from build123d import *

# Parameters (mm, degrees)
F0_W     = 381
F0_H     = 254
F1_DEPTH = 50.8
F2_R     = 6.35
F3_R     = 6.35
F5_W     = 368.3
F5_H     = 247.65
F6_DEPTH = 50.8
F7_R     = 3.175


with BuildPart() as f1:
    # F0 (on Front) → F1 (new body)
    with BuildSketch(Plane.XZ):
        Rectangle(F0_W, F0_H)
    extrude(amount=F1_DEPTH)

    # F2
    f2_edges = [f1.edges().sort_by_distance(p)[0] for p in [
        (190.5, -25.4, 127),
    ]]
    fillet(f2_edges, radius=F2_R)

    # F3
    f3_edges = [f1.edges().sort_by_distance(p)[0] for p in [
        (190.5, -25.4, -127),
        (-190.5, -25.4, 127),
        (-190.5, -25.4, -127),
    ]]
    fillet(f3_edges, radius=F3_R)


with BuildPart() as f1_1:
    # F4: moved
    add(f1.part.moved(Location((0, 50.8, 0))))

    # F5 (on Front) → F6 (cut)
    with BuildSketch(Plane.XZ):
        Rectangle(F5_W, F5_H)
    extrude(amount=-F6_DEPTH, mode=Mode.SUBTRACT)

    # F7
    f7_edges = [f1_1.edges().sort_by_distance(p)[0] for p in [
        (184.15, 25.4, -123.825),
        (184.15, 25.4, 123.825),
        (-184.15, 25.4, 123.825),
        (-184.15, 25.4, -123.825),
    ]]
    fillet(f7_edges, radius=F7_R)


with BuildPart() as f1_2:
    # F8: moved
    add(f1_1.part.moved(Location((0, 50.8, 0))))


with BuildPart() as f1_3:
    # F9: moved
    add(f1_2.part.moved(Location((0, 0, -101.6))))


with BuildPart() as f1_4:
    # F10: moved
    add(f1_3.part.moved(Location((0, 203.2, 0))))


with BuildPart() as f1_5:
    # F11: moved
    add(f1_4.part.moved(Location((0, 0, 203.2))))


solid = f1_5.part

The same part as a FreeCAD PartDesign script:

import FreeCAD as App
import Part
import Sketcher

V = App.Vector
Q = App.Units.Quantity


def edges_at(feature, points):
    """Names of the edges that pass closest to the given points."""
    edges = feature.Shape.Edges
    near = lambda p: min(range(len(edges)), key=lambda i: edges[i].distToShape(Part.Vertex(*p))[0])
    return sorted({f"Edge{near(p) + 1}" for p in points})


def add_polygon(sketch, points):
    """Adds a closed chain of lines whose ends are joined by coincident constraints."""
    first, n = sketch.GeometryCount, len(points)
    for a, b in zip(points, points[1:] + points[:1]):
        sketch.addGeometry(Part.LineSegment(App.Vector(*a, 0), App.Vector(*b, 0)), False)
    for i in range(n):
        sketch.addConstraint(Sketcher.Constraint("Coincident", first + i, 2, first + (i + 1) % n, 1))

doc = App.newDocument("Part")
params = doc.addObject("Spreadsheet::Sheet", "Params")
for row, (alias, value) in enumerate([
    ("sketch1_width", "15 in"),
    ("sketch1_height", "10 in"),
    ("pad1_length", "2 in"),
    ("fillet_radius", "0.25 in"),
    ("fillet2_radius", "0.25 in"),
    ("sketch2_width", "14.5 in"),
    ("sketch2_height", "9.75 in"),
    ("pocket1_length", "2 in"),
    ("fillet3_radius", "0.125 in"),
], start=1):
    params.set(f"A{row}", alias)
    params.set(f"B{row}", "=" + value)
    params.setAlias(f"B{row}", alias)

body = doc.addObject("PartDesign::Body", "Body")

sketch1 = doc.addObject("Sketcher::SketchObject", "Sketch")
body.addObject(sketch1)
sketch1.AttachmentSupport = (doc.XZ_Plane, [""])
sketch1.MapMode = "FlatFace"
add_polygon(sketch1, [(-190, 127), (-190, -127), (190, -127), (190, 127)])
sketch1.addConstraint([
    Sketcher.Constraint("Vertical", 0),
    Sketcher.Constraint("Horizontal", 1),
    Sketcher.Constraint("Vertical", 2),
    Sketcher.Constraint("Horizontal", 3),
    Sketcher.Constraint("Symmetric", 0, 2, 2, 2, -1, 1),
    Sketcher.Constraint("DistanceX", 1, 1, 1, 2, Q("15 in")),
    Sketcher.Constraint("DistanceY", 0, 2, 0, 1, Q("10 in")),
])
sketch1.setExpression("Constraints[9]", "Params.sketch1_width")
sketch1.setExpression("Constraints[10]", "Params.sketch1_height")
pad1 = doc.addObject("PartDesign::Pad", "Pad")
body.addObject(pad1)
pad1.Profile = sketch1
pad1.setExpression("Length", "Params.pad1_length")
doc.recompute()

fillet = doc.addObject("PartDesign::Fillet", "Fillet")
body.addObject(fillet)
fillet.Base = (pad1, edges_at(pad1, [(190.5, -25.4, 127)]))
fillet.setExpression("Radius", "Params.fillet_radius")
doc.recompute()

fillet2 = doc.addObject("PartDesign::Fillet", "Fillet001")
body.addObject(fillet2)
fillet2.Base = (fillet, edges_at(fillet, [(190.5, -25.4, -127), (-190.5, -25.4, 127), (-190.5, -25.4, -127)]))
fillet2.setExpression("Radius", "Params.fillet2_radius")
body2 = doc.addObject("PartDesign::Body", "Body001")
doc.recompute()

body.Placement = App.Placement(V(0, 50.8, 0), App.Rotation(V(0, 0, 1), 0))
boolean = doc.addObject("PartDesign::Boolean", "Boolean")
body2.addObject(boolean)
boolean.Type = "Fuse"
boolean.addObjects([body])

sketch2 = doc.addObject("Sketcher::SketchObject", "Sketch001")
body2.addObject(sketch2)
sketch2.AttachmentSupport = (doc.getObject("XZ_Plane001"), [""])
sketch2.MapMode = "FlatFace"
add_polygon(sketch2, [(-184, 124), (-184, -124), (184, -124), (184, 124)])
sketch2.addConstraint([
    Sketcher.Constraint("Vertical", 0),
    Sketcher.Constraint("Horizontal", 1),
    Sketcher.Constraint("Vertical", 2),
    Sketcher.Constraint("Horizontal", 3),
    Sketcher.Constraint("Symmetric", 0, 2, 2, 2, -1, 1),
    Sketcher.Constraint("DistanceX", 1, 1, 1, 2, Q("14.5 in")),
    Sketcher.Constraint("DistanceY", 0, 2, 0, 1, Q("9.75 in")),
])
sketch2.setExpression("Constraints[9]", "Params.sketch2_width")
sketch2.setExpression("Constraints[10]", "Params.sketch2_height")
pocket1 = doc.addObject("PartDesign::Pocket", "Pocket")
body2.addObject(pocket1)
pocket1.Profile = sketch2
pocket1.setExpression("Length", "Params.pocket1_length")
doc.recompute()

fillet3 = doc.addObject("PartDesign::Fillet", "Fillet002")
body2.addObject(fillet3)
fillet3.Base = (pocket1, edges_at(pocket1, [
    (184.15, 25.4, -123.825),
    (184.15, 25.4, 123.825),
    (-184.15, 25.4, 123.825),
    (-184.15, 25.4, -123.825),
]))
fillet3.setExpression("Radius", "Params.fillet3_radius")
body3 = doc.addObject("PartDesign::Body", "Body002")
doc.recompute()

body2.Placement = App.Placement(V(0, 50.8, 0), App.Rotation(V(0, 0, 1), 0))
boolean2 = doc.addObject("PartDesign::Boolean", "Boolean001")
body3.addObject(boolean2)
boolean2.Type = "Fuse"
boolean2.addObjects([body2])
body4 = doc.addObject("PartDesign::Body", "Body003")
doc.recompute()

body3.Placement = App.Placement(V(0, 0, -101.6), App.Rotation(V(0, 0, 1), 0))
boolean3 = doc.addObject("PartDesign::Boolean", "Boolean002")
body4.addObject(boolean3)
boolean3.Type = "Fuse"
boolean3.addObjects([body3])
body5 = doc.addObject("PartDesign::Body", "Body004")
doc.recompute()

body4.Placement = App.Placement(V(0, 203.2, 0), App.Rotation(V(0, 0, 1), 0))
boolean4 = doc.addObject("PartDesign::Boolean", "Boolean003")
body5.addObject(boolean4)
boolean4.Type = "Fuse"
boolean4.addObjects([body4])
body6 = doc.addObject("PartDesign::Body", "Body005")
doc.recompute()

body5.Placement = App.Placement(V(0, 0, 203.2), App.Rotation(V(0, 0, 1), 0))
boolean5 = doc.addObject("PartDesign::Boolean", "Boolean004")
body6.addObject(boolean5)
boolean5.Type = "Fuse"
boolean5.addObjects([body5])

doc.recompute()
